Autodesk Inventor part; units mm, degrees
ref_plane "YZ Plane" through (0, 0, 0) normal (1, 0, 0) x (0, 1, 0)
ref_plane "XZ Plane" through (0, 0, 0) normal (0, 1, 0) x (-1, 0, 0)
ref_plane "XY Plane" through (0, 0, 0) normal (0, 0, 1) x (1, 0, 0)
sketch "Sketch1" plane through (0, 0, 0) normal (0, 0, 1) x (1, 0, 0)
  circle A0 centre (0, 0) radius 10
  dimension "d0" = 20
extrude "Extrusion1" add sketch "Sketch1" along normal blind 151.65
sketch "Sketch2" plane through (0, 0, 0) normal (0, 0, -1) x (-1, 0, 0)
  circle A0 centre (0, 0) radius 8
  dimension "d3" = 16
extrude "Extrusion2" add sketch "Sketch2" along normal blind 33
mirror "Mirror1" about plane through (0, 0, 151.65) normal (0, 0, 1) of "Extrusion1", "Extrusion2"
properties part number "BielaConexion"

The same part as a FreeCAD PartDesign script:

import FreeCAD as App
import Part
import Sketcher

V = App.Vector
Q = App.Units.Quantity

doc = App.newDocument("Part")
body = doc.addObject("PartDesign::Body", "Body")

sketch1 = body.newObject("Sketcher::SketchObject", "Sketch")
sketch1.AttachmentSupport = (doc.getObject("XY_Plane"), [""])
sketch1.MapMode = "FlatFace"
sketch1.addGeometry(Part.Circle(V(0, 0, 0), V(0, 0, 1), 10), False)
sketch1.addConstraint([
    Sketcher.Constraint("Coincident", 0, 3, -1, 1),
    Sketcher.Constraint("Diameter", 0, Q("20 mm")),
])
pad1 = body.newObject("PartDesign::Pad", "Pad")
pad1.Profile = sketch1
pad1.Length = 151.65

sketch2 = body.newObject("Sketcher::SketchObject", "Sketch001")
sketch2.AttachmentSupport = (doc.getObject("XY_Plane"), [""])
sketch2.MapMode = "FlatFace"
sketch2.addGeometry(Part.Circle(V(0, 0, 0), V(0, 0, 1), 8), False)
sketch2.addConstraint([
    Sketcher.Constraint("Coincident", 0, 3, -1, 1),
    Sketcher.Constraint("Diameter", 0, Q("16 mm")),
])
pad2 = body.newObject("PartDesign::Pad", "Pad001")
pad2.Profile = sketch2
pad2.Length = 33
pad2.Reversed = True
doc.recompute()

datumplane = body.newObject("PartDesign::Plane", "DatumPlane")
datumplane.AttachmentSupport = (doc.getObject("XY_Plane"), [""])
datumplane.MapMode = "FlatFace"
datumplane.AttachmentOffset = App.Placement(V(0, 0, 151.65), App.Rotation())
mirrored = body.newObject("PartDesign::Mirrored", "Mirrored")
mirrored.Originals = [pad1, pad2]
mirrored.MirrorPlane = (datumplane, [""])
body.Tip = mirrored

doc.recompute()
